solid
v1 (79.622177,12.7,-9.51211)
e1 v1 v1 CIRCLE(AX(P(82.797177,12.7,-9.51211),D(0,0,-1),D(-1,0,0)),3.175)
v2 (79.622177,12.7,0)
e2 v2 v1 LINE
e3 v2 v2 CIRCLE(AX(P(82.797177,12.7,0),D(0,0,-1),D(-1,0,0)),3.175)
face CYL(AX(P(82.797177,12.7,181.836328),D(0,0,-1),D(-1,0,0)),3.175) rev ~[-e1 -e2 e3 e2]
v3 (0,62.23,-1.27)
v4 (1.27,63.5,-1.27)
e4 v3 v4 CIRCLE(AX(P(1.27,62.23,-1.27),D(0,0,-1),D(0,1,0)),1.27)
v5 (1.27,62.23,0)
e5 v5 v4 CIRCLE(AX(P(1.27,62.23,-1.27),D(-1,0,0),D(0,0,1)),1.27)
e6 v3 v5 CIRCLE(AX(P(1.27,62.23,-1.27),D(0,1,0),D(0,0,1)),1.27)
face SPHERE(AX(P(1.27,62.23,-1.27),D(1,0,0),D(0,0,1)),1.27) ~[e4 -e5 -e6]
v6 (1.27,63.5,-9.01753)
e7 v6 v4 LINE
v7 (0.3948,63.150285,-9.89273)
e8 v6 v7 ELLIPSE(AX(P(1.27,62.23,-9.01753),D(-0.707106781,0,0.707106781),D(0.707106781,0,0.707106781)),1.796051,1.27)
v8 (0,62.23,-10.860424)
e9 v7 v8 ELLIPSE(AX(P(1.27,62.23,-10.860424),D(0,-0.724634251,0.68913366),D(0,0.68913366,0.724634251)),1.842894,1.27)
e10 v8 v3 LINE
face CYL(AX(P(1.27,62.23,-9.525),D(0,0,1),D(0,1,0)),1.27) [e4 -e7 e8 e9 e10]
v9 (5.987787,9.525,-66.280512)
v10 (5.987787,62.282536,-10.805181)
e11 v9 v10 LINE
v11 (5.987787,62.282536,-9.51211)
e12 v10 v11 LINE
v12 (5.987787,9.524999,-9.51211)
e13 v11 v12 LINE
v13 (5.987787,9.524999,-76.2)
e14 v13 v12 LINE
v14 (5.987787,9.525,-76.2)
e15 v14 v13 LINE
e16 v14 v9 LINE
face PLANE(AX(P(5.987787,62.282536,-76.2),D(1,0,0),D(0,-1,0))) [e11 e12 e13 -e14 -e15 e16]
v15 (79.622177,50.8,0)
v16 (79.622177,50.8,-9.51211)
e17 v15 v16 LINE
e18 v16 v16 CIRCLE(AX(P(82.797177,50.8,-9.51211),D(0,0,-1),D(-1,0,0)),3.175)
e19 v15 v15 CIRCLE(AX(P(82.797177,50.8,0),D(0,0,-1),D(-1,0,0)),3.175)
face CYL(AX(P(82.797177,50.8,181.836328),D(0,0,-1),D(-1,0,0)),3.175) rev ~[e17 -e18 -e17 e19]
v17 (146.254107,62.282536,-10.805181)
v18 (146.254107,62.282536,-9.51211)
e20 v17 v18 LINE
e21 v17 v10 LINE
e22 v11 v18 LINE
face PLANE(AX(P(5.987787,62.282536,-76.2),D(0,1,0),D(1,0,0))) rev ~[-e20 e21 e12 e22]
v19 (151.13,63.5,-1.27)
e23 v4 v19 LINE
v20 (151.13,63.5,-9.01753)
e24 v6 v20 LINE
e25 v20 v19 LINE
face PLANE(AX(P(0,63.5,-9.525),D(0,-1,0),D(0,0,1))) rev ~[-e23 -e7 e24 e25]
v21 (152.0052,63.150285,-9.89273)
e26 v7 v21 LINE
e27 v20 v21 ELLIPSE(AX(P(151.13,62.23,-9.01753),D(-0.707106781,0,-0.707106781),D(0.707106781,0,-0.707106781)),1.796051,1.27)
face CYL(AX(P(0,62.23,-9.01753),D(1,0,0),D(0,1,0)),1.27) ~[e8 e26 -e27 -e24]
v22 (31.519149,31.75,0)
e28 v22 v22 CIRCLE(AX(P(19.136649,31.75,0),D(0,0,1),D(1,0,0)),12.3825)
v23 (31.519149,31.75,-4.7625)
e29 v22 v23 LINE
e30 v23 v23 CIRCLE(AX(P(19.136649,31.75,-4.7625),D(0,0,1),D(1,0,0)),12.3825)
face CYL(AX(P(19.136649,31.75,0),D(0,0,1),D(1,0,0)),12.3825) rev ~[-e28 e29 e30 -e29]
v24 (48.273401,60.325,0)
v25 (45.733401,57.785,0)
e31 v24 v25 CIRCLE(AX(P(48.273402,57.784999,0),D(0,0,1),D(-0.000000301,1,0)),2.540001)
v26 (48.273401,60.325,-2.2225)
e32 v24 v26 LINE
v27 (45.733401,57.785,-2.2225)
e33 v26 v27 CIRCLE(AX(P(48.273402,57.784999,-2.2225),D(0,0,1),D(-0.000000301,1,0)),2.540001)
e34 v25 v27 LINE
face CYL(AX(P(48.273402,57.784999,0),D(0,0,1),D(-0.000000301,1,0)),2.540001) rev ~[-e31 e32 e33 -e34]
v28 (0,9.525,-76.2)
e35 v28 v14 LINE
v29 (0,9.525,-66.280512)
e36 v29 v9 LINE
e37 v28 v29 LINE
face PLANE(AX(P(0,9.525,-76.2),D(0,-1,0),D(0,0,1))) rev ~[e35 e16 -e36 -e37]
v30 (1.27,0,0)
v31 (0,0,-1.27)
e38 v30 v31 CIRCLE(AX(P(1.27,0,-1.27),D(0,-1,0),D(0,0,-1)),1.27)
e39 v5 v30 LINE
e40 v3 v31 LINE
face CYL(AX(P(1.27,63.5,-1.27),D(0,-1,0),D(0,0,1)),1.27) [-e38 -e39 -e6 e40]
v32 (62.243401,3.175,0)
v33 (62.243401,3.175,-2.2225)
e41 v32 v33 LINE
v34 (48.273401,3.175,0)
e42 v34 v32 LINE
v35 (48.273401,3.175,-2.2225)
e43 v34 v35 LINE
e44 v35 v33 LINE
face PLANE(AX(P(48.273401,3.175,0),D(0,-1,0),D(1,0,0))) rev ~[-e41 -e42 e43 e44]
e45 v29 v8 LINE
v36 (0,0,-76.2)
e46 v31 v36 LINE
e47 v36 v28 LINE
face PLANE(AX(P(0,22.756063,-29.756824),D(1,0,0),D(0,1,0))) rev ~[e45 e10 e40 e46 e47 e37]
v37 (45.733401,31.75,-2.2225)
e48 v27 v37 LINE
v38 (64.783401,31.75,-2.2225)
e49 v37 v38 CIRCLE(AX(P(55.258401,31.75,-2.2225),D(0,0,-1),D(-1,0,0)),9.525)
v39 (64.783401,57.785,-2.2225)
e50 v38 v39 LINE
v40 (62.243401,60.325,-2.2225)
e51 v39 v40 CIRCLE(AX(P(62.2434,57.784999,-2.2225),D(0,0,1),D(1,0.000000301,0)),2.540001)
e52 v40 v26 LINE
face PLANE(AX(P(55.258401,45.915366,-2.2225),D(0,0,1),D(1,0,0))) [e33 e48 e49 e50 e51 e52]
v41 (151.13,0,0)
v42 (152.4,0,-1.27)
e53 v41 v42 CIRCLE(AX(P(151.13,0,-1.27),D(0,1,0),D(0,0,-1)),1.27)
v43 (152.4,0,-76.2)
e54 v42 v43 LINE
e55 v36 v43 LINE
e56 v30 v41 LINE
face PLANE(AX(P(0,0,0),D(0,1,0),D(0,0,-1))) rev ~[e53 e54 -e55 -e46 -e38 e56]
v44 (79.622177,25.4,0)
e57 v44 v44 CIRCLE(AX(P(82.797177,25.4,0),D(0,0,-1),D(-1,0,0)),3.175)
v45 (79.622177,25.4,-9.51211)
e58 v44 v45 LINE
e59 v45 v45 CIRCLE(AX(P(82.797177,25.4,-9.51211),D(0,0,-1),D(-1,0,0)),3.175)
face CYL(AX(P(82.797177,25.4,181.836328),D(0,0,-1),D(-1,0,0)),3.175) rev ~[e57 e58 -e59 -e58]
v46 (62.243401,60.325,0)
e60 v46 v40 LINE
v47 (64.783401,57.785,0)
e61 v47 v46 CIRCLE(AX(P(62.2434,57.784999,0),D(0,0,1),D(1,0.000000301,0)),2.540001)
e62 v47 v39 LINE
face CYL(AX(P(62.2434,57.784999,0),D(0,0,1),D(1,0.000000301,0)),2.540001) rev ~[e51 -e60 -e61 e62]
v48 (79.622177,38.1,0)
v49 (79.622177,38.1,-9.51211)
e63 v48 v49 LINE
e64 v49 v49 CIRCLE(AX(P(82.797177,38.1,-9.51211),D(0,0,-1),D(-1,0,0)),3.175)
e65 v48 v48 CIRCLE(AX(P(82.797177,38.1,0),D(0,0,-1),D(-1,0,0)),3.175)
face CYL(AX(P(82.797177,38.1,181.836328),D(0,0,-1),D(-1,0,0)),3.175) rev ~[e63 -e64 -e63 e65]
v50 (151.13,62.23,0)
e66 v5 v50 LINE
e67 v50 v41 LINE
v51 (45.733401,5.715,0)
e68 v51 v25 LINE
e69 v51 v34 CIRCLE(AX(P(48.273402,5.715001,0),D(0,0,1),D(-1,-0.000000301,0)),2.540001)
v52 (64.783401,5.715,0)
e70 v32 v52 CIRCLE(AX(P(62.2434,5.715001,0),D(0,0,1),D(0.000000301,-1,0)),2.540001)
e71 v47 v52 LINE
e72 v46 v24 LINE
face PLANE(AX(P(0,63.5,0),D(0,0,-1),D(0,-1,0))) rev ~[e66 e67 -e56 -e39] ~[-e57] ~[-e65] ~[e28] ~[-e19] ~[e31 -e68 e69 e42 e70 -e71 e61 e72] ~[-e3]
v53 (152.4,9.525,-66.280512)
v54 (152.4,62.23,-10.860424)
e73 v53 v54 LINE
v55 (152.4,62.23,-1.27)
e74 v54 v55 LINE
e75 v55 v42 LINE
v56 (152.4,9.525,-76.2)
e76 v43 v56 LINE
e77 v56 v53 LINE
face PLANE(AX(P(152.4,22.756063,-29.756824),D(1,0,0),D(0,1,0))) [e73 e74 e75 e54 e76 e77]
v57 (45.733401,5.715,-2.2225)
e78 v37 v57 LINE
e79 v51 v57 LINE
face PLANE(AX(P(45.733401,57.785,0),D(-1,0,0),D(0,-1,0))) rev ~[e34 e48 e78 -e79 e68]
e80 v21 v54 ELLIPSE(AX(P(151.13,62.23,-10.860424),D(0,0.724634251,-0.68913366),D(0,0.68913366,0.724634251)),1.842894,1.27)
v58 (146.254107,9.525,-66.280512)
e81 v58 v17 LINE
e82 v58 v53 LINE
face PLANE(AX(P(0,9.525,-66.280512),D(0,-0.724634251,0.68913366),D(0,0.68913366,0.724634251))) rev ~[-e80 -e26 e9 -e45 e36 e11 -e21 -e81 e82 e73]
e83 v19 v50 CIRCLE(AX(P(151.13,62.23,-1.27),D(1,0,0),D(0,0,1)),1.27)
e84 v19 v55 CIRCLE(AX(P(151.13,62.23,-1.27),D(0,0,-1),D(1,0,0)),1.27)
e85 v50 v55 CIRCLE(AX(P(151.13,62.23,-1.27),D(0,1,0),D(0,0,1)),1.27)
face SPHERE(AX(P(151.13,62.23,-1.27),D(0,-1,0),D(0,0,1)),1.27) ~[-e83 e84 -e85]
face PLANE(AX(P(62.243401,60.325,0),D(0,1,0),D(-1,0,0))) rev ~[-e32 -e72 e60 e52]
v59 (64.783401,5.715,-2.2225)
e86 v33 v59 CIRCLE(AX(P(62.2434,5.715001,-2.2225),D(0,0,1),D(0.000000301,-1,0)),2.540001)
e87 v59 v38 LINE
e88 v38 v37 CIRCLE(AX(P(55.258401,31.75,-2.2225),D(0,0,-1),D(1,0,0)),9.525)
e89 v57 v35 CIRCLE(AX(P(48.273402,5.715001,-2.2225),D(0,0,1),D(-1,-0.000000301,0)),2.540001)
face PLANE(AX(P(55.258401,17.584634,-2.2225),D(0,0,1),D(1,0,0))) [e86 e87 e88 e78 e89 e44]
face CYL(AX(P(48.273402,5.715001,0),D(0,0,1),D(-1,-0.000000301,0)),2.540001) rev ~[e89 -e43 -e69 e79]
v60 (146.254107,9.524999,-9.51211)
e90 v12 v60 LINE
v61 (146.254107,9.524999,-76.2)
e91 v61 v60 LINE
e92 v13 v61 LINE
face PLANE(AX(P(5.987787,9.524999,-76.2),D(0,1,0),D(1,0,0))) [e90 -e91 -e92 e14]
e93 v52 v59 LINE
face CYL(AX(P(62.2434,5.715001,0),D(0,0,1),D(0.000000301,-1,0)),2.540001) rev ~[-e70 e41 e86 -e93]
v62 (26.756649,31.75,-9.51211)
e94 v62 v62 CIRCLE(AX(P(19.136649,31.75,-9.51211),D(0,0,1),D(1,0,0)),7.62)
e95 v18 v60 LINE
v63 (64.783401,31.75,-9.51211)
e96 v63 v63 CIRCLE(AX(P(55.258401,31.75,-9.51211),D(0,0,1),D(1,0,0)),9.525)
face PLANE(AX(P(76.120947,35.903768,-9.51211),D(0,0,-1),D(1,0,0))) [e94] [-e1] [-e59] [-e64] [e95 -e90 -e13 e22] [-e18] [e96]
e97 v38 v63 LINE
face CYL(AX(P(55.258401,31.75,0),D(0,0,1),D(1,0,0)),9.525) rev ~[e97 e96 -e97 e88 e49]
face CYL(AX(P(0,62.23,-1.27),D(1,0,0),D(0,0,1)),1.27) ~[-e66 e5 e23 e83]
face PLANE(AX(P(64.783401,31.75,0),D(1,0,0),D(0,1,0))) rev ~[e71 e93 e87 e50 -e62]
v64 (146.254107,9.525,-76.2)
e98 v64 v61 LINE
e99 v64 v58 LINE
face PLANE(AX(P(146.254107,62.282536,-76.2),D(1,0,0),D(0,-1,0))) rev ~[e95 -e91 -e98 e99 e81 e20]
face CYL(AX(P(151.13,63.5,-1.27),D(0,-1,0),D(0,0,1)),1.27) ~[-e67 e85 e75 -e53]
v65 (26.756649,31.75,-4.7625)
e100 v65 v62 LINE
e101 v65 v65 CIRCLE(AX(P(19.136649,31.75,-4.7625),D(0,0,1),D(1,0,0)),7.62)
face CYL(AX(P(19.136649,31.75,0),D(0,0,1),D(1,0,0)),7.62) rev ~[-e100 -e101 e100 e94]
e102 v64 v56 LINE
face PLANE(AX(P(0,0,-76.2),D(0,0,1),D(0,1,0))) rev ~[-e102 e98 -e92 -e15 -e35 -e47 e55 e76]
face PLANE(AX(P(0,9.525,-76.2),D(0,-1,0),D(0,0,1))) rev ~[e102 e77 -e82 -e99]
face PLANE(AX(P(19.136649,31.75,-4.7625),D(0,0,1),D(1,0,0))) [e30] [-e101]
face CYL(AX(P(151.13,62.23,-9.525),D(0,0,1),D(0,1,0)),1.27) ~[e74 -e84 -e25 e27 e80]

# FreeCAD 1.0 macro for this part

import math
import FreeCAD as App
import Part
import Sketcher
from FreeCAD import Vector
Q = App.Units.Quantity


def edges_at(feature, points):
    """Names of the edges that pass closest to the given points."""
    edges = feature.Shape.Edges
    near = lambda p: min(range(len(edges)), key=lambda i: edges[i].distToShape(Part.Vertex(*p))[0])
    return sorted({f"Edge{near(p) + 1}" for p in points})

doc = App.newDocument("Part")
body = doc.addObject("PartDesign::Body", "Body")

sketch1 = doc.addObject("Sketcher::SketchObject", "Sketch")
body.addObject(sketch1)
sketch1.AttachmentSupport = (doc.YZ_Plane, [""])
sketch1.MapMode = "FlatFace"
sketch1.addGeometry([
    Part.LineSegment(Vector(64, 0, 0), Vector(0, 0, 0)),
    Part.LineSegment(Vector(0, 0, 0), Vector(0, -76, 0)),
    Part.LineSegment(Vector(0, -76, 0), Vector(10, -76, 0)),
    Part.LineSegment(Vector(10, -76, 0), Vector(10, -66, 0)),
    Part.LineSegment(Vector(10, -66, 0), Vector(64, -10, 0)),
    Part.LineSegment(Vector(64, -10, 0), Vector(64, 0, 0)),
], False)
sketch1.addConstraint([
    Sketcher.Constraint("Coincident", 0, 2, 1, 1),
    Sketcher.Constraint("Coincident", 1, 2, 2, 1),
    Sketcher.Constraint("Coincident", 2, 2, 3, 1),
    Sketcher.Constraint("Coincident", 3, 2, 4, 1),
    Sketcher.Constraint("Coincident", 4, 2, 5, 1),
    Sketcher.Constraint("Coincident", 5, 2, 0, 1),
    Sketcher.Constraint("Horizontal", 0),
    Sketcher.Constraint("Vertical", 1),
    Sketcher.Constraint("Horizontal", 2),
    Sketcher.Constraint("Vertical", 3),
    Sketcher.Constraint("Vertical", 5),
    Sketcher.Constraint("Coincident", 0, 2, -1, 1),
    Sketcher.Constraint("Equal", 2, 5),
    Sketcher.Constraint("DistanceY", 1, 2, 1, 1, Q("3 in")),
    Sketcher.Constraint("DistanceX", 0, 2, 0, 1, Q("2.5 in")),
    Sketcher.Constraint("DistanceX", 2, 1, 2, 2, Q("0.375 in")),
    Sketcher.Constraint("DistanceY", 3, 1, 3, 2, Q("9.919488 mm")),
])
pad1 = doc.addObject("PartDesign::Pad", "Pad")
body.addObject(pad1)
pad1.Profile = sketch1
pad1.Length = Q("6 in")

sketch2 = doc.addObject("Sketcher::SketchObject", "Sketch001")
body.addObject(sketch2)
sketch2.AttachmentSupport = (doc.XY_Plane, [""])
sketch2.MapMode = "FlatFace"
sketch2.AttachmentOffset = App.Placement(Vector(0, 0, -3 * 25.4), App.Rotation())
sketch2.addGeometry([
    Part.LineSegment(Vector(6, 10, 0), Vector(6, 62, 0)),
    Part.LineSegment(Vector(6, 62, 0), Vector(146, 62, 0)),
    Part.LineSegment(Vector(146, 62, 0), Vector(146, 10, 0)),
    Part.LineSegment(Vector(146, 10, 0), Vector(6, 10, 0)),
], False)
sketch2.addConstraint([
    Sketcher.Constraint("Coincident", 0, 2, 1, 1),
    Sketcher.Constraint("Coincident", 1, 2, 2, 1),
    Sketcher.Constraint("Coincident", 2, 2, 3, 1),
    Sketcher.Constraint("Coincident", 3, 2, 0, 1),
    Sketcher.Constraint("Vertical", 0),
    Sketcher.Constraint("Horizontal", 1),
    Sketcher.Constraint("Vertical", 2),
    Sketcher.Constraint("Horizontal", 3),
    Sketcher.Constraint("DistanceY", -1, 1, 2, 2, Q("0.375 in")),
    Sketcher.Constraint("DistanceX", 1, 1, 1, 2, Q("140.266319 mm")),
    Sketcher.Constraint("DistanceY", 0, 1, 0, 2, Q("52.757537 mm")),
    Sketcher.Constraint("DistanceX", -1, 1, 0, 2, Q("5.987787 mm")),
])
pocket1 = doc.addObject("PartDesign::Pocket", "Pocket")
body.addObject(pocket1)
pocket1.Profile = sketch2
pocket1.Length = 66.68789
pocket1.Reversed = True

sketch3 = doc.addObject("Sketcher::SketchObject", "Sketch002")
body.addObject(sketch3)
sketch3.AttachmentSupport = (doc.XY_Plane, [""])
sketch3.MapMode = "FlatFace"
sketch3.addGeometry(Part.Circle(Vector(19, 32, 0), Vector(0, 0, 1), 8), False)
sketch3.addConstraint([
    Sketcher.Constraint("Diameter", 0, Q("0.6 in")),
    Sketcher.Constraint("DistanceY", -1, 1, 0, 3, Q("1.25 in")),
    Sketcher.Constraint("DistanceX", -1, 1, 0, 3, Q("19.136649 mm")),
])
pocket2 = doc.addObject("PartDesign::Pocket", "Pocket001")
body.addObject(pocket2)
pocket2.Profile = sketch3
pocket2.Length = Q("1 in")

sketch4 = doc.addObject("Sketcher::SketchObject", "Sketch003")
body.addObject(sketch4)
sketch4.AttachmentSupport = (doc.XY_Plane, [""])
sketch4.MapMode = "FlatFace"
sketch4.addGeometry([
    Part.Circle(Vector(19, 32, 0), Vector(0, 0, 1), 12),
    Part.Circle(Vector(19, 32, 0), Vector(0, 0, 1), 8),
], False)
sketch4.addConstraint([
    Sketcher.Constraint("Coincident", 1, 3, 0, 3),
    Sketcher.Constraint("Diameter", 1, Q("0.6 in")),
    Sketcher.Constraint("Diameter", 0, Q("0.975 in")),
    Sketcher.Constraint("DistanceY", -1, 1, 0, 3, Q("1.25 in")),
    Sketcher.Constraint("DistanceX", -1, 1, 0, 3, Q("19.136649 mm")),
])
pocket3 = doc.addObject("PartDesign::Pocket", "Pocket002")
body.addObject(pocket3)
pocket3.Profile = sketch4
pocket3.Length = Q("0.1875 in")

sketch5 = doc.addObject("Sketcher::SketchObject", "Sketch004")
body.addObject(sketch5)
sketch5.AttachmentSupport = (doc.XY_Plane, [""])
sketch5.MapMode = "FlatFace"
sketch5.addGeometry(Part.Circle(Vector(55, 32, 0), Vector(0, 0, 1), 10), False)
sketch5.addConstraint([
    Sketcher.Constraint("Diameter", 0, Q("0.75 in")),
    Sketcher.Constraint("DistanceY", -1, 1, 0, 3, Q("1.25 in")),
    Sketcher.Constraint("DistanceX", -1, 1, 0, 3, Q("55.258401 mm")),
])
pocket4 = doc.addObject("PartDesign::Pocket", "Pocket003")
body.addObject(pocket4)
pocket4.Profile = sketch5
pocket4.Length = Q("1 in")

sketch6 = doc.addObject("Sketcher::SketchObject", "Sketch005")
body.addObject(sketch6)
sketch6.AttachmentSupport = (doc.XY_Plane, [""])
sketch6.MapMode = "FlatFace"
sketch6.addGeometry([
    Part.ArcOfCircle(Part.Circle(Vector(55.3, 31.8, 0), Vector(0, 0, 1), 9.5), math.radians(0), math.radians(180)),
    Part.LineSegment(Vector(64.8, 31.8, 0), Vector(64.8, 57.8, 0)),
    Part.ArcOfCircle(Part.Circle(Vector(62.2, 57.8, 0), Vector(0, 0, 1), 2.5), math.radians(0), math.radians(90)),
    Part.LineSegment(Vector(62.2, 60.3, 0), Vector(48.3, 60.3, 0)),
    Part.ArcOfCircle(Part.Circle(Vector(48.3, 57.8, 0), Vector(0, 0, 1), 2.5), math.radians(90), math.radians(180)),
    Part.LineSegment(Vector(45.7, 57.8, 0), Vector(45.7, 31.8, 0)),
], False)
sketch6.addConstraint([
    Sketcher.Constraint("Tangent", 0, 1, 1, 1),
    Sketcher.Constraint("Tangent", 1, 2, 2, 1),
    Sketcher.Constraint("Tangent", 2, 2, 3, 1),
    Sketcher.Constraint("Tangent", 3, 2, 4, 1),
    Sketcher.Constraint("Tangent", 4, 2, 5, 1),
    Sketcher.Constraint("Tangent", 5, 2, 0, 2),
    Sketcher.Constraint("Vertical", 1),
    Sketcher.Constraint("Horizontal", 3),
    Sketcher.Constraint("Vertical", 5),
    Sketcher.Constraint("Equal", 2, 4),
    Sketcher.Constraint("Radius", 2, Q("0.1 in")),
    Sketcher.Constraint("Radius", 0, Q("0.375 in")),
    Sketcher.Constraint("DistanceY", 1, 1, 1, 2, Q("1.025 in")),
    Sketcher.Constraint("DistanceY", -1, 1, 0, 3, Q("1.25 in")),
    Sketcher.Constraint("DistanceX", -1, 1, 0, 3, Q("55.258401 mm")),
])
pocket5 = doc.addObject("PartDesign::Pocket", "Pocket004")
body.addObject(pocket5)
pocket5.Profile = sketch6
pocket5.Length = Q("0.0875 in")

sketch7 = doc.addObject("Sketcher::SketchObject", "Sketch006")
body.addObject(sketch7)
sketch7.AttachmentSupport = (doc.XY_Plane, [""])
sketch7.MapMode = "FlatFace"
sketch7.addGeometry([
    Part.LineSegment(Vector(64.8, 5.7, 0), Vector(64.8, 31.8, 0)),
    Part.ArcOfCircle(Part.Circle(Vector(55.3, 31.8, 0), Vector(0, 0, 1), 9.5), math.radians(180), math.radians(360)),
    Part.LineSegment(Vector(45.7, 31.8, 0), Vector(45.7, 5.7, 0)),
    Part.ArcOfCircle(Part.Circle(Vector(48.3, 5.7, 0), Vector(0, 0, 1), 2.5), math.radians(-180), math.radians(-90)),
    Part.LineSegment(Vector(48.3, 3.2, 0), Vector(62.2, 3.2, 0)),
    Part.ArcOfCircle(Part.Circle(Vector(62.2, 5.7, 0), Vector(0, 0, 1), 2.5), math.radians(-90), math.radians(0)),
], False)
sketch7.addConstraint([
    Sketcher.Constraint("Tangent", 0, 2, 1, 2),
    Sketcher.Constraint("Tangent", 1, 1, 2, 1),
    Sketcher.Constraint("Tangent", 2, 2, 3, 1),
    Sketcher.Constraint("Tangent", 3, 2, 4, 1),
    Sketcher.Constraint("Tangent", 4, 2, 5, 1),
    Sketcher.Constraint("Tangent", 5, 2, 0, 1),
    Sketcher.Constraint("Vertical", 0),
    Sketcher.Constraint("Vertical", 2),
    Sketcher.Constraint("Horizontal", 4),
    Sketcher.Constraint("Equal", 3, 5),
    Sketcher.Constraint("Radius", 3, Q("0.1 in")),
    Sketcher.Constraint("Radius", 1, Q("0.375 in")),
    Sketcher.Constraint("DistanceY", 0, 1, 0, 2, Q("1.025 in")),
    Sketcher.Constraint("DistanceY", -1, 1, 1, 3, Q("1.25 in")),
    Sketcher.Constraint("DistanceX", -1, 1, 1, 3, Q("55.258401 mm")),
])
pocket6 = doc.addObject("PartDesign::Pocket", "Pocket005")
body.addObject(pocket6)
pocket6.Profile = sketch7
pocket6.Length = Q("0.0875 in")

sketch8 = doc.addObject("Sketcher::SketchObject", "Sketch007")
body.addObject(sketch8)
sketch8.AttachmentSupport = (doc.XY_Plane, [""])
sketch8.MapMode = "FlatFace"
sketch8.addGeometry([
    Part.Circle(Vector(82.8, 50.8, 0), Vector(0, 0, 1), 3.2),
    Part.Circle(Vector(82.8, 38.1, 0), Vector(0, 0, 1), 3.2),
    Part.Circle(Vector(82.8, 25.4, 0), Vector(0, 0, 1), 3.2),
    Part.Circle(Vector(82.8, 12.7, 0), Vector(0, 0, 1), 3.2),
], False)
sketch8.addConstraint([
    Sketcher.Constraint("Equal", 0, 1),
    Sketcher.Constraint("Equal", 1, 2),
    Sketcher.Constraint("Equal", 2, 3),
    Sketcher.Constraint("Vertical", 0, 3, 1, 3),
    Sketcher.Constraint("Vertical", 1, 3, 2, 3),
    Sketcher.Constraint("Vertical", 2, 3, 3, 3),
    Sketcher.Constraint("Diameter", 0, Q("0.25 in")),
    Sketcher.Constraint("DistanceY", -1, 1, 0, 3, Q("2 in")),
    Sketcher.Constraint("DistanceY", -1, 1, 2, 3, Q("1 in")),
    Sketcher.Constraint("DistanceY", 3, 3, 1, 3, Q("1 in")),
    Sketcher.Constraint("DistanceY", -1, 1, 1, 3, Q("1.5 in")),
    Sketcher.Constraint("DistanceX", -1, 1, 0, 3, Q("82.797177 mm")),
])
doc.recompute()
hole = doc.addObject("PartDesign::Hole", "Hole")
body.addObject(hole)
hole.Profile = sketch8
hole.ThreadType = "None"
hole.Diameter = Q("0.25 in")
hole.DepthType = "ThroughAll"
doc.recompute()

fillet = doc.addObject("PartDesign::Fillet", "Fillet")
body.addObject(fillet)
fillet.Base = (hole, edges_at(hole, [
    (152.4, 31.75, 0),
    (76.2, 63.5, 0),
    (0, 31.75, 0),
    (0, 63.5, -4.763),
    (152.4, 63.5, -4.763),
    (76.2, 63.5, -9.525),
]))
fillet.Radius = Q("0.05 in")

doc.recompute()
